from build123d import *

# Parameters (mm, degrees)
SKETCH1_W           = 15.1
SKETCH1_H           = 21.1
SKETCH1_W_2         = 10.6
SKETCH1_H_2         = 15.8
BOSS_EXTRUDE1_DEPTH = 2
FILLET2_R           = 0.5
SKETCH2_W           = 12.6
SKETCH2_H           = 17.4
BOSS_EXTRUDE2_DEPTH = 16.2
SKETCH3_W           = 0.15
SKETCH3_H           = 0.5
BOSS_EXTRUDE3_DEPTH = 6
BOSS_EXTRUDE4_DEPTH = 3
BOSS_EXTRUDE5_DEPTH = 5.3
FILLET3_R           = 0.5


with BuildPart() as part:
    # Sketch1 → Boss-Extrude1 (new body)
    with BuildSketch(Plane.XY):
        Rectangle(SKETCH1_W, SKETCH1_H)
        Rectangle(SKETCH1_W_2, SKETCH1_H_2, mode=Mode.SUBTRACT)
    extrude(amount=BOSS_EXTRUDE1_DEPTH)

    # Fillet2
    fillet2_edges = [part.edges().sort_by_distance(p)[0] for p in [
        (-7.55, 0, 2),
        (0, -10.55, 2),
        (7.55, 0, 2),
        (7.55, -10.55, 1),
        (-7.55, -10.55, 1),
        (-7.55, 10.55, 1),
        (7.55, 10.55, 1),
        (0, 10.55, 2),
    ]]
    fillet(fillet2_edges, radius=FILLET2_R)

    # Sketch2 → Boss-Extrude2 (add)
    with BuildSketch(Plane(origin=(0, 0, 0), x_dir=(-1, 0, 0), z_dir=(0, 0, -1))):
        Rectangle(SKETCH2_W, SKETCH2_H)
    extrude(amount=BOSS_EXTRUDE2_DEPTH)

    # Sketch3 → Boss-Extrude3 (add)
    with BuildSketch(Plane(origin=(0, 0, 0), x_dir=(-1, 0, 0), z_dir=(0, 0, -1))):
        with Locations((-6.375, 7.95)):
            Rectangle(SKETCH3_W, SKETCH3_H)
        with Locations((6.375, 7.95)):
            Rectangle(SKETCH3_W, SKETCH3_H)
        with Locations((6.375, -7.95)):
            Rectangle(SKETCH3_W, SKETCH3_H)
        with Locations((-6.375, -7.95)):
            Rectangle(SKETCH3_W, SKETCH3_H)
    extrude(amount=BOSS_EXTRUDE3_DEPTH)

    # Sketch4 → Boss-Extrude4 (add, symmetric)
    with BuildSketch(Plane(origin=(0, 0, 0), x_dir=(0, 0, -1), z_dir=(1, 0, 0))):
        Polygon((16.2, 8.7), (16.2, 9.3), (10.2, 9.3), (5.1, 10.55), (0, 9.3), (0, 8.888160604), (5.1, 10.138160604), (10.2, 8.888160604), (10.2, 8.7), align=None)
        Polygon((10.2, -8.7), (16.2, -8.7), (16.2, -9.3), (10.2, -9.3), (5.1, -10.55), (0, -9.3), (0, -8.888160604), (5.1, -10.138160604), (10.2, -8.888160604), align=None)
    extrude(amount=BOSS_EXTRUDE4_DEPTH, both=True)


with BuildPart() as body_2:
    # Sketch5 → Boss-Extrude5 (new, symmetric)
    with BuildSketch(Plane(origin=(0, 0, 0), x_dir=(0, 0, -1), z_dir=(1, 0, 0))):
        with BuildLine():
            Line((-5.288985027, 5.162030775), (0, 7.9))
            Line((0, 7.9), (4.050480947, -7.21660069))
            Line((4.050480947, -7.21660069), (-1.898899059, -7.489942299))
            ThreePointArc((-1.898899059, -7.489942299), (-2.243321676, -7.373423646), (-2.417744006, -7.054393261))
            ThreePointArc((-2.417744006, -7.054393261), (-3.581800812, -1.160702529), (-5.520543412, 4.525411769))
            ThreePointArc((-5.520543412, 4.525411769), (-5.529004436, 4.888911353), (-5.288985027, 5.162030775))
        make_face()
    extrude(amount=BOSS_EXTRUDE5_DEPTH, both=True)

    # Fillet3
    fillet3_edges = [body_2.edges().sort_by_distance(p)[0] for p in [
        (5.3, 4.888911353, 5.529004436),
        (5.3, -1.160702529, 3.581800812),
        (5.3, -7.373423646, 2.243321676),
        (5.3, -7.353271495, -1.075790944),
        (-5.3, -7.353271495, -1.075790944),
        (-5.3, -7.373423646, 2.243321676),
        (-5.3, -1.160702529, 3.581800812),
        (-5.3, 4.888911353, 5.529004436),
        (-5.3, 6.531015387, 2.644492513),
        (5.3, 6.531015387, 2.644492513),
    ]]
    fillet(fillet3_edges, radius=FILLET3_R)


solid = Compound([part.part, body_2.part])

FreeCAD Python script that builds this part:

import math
import FreeCAD as App
import Part
import Sketcher
Q = App.Units.Quantity


def edges_at(feature, points):
    """Names of the edges that pass closest to the given points."""
    edges = feature.Shape.Edges
    near = lambda p: min(range(len(edges)), key=lambda i: edges[i].distToShape(Part.Vertex(*p))[0])
    return sorted({f"Edge{near(p) + 1}" for p in points})

doc = App.newDocument("Part")
body = doc.addObject("PartDesign::Body", "Body")

sketch1 = body.newObject("Sketcher::SketchObject", "Sketch")
sketch1.AttachmentSupport = (doc.getObject("XY_Plane"), [""])
sketch1.MapMode = "FlatFace"
sketch1.addGeometry([
    Part.LineSegment(App.Vector(-8, 11, 0), App.Vector(-8, -11, 0)),
    Part.LineSegment(App.Vector(-8, -11, 0), App.Vector(8, -11, 0)),
    Part.LineSegment(App.Vector(8, -11, 0), App.Vector(8, 11, 0)),
    Part.LineSegment(App.Vector(8, 11, 0), App.Vector(-8, 11, 0)),
    Part.LineSegment(App.Vector(5, -8, 0), App.Vector(-5, -8, 0)),
    Part.LineSegment(App.Vector(-5, -8, 0), App.Vector(-5, 8, 0)),
    Part.LineSegment(App.Vector(-5, 8, 0), App.Vector(5, 8, 0)),
    Part.LineSegment(App.Vector(5, 8, 0), App.Vector(5, -8, 0)),
], False)
sketch1.addConstraint([
    Sketcher.Constraint("Coincident", 0, 2, 1, 1),
    Sketcher.Constraint("Coincident", 1, 2, 2, 1),
    Sketcher.Constraint("Coincident", 2, 2, 3, 1),
    Sketcher.Constraint("Coincident", 3, 2, 0, 1),
    Sketcher.Constraint("Coincident", 4, 2, 5, 1),
    Sketcher.Constraint("Coincident", 5, 2, 6, 1),
    Sketcher.Constraint("Coincident", 6, 2, 7, 1),
    Sketcher.Constraint("Coincident", 7, 2, 4, 1),
    Sketcher.Constraint("Vertical", 0),
    Sketcher.Constraint("Horizontal", 1),
    Sketcher.Constraint("Vertical", 2),
    Sketcher.Constraint("Horizontal", 3),
    Sketcher.Constraint("Horizontal", 4),
    Sketcher.Constraint("Vertical", 5),
    Sketcher.Constraint("Horizontal", 6),
    Sketcher.Constraint("Vertical", 7),
    Sketcher.Constraint("Symmetric", 0, 2, 2, 2, -1, 1),
    Sketcher.Constraint("Symmetric", 4, 2, 6, 2, -1, 1),
    Sketcher.Constraint("DistanceX", 1, 1, 1, 2, Q("15.1 mm")),
    Sketcher.Constraint("DistanceX", 4, 2, 4, 1, Q("10.6 mm")),
    Sketcher.Constraint("DistanceY", 0, 2, 0, 1, Q("21.1 mm")),
    Sketcher.Constraint("DistanceY", 5, 1, 5, 2, Q("15.8 mm")),
])
pad1 = body.newObject("PartDesign::Pad", "Pad")
pad1.Profile = sketch1
pad1.Length = 2
doc.recompute()

fillet = body.newObject("PartDesign::Fillet", "Fillet")
fillet.Base = (pad1, edges_at(pad1, [
    (-7.55, 0, 2),
    (0, -10.55, 2),
    (7.55, 0, 2),
    (7.55, -10.55, 1),
    (-7.55, -10.55, 1),
    (-7.55, 10.55, 1),
    (7.55, 10.55, 1),
    (0, 10.55, 2),
]))
fillet.Radius = 0.5

sketch2 = body.newObject("Sketcher::SketchObject", "Sketch001")
sketch2.AttachmentSupport = (doc.getObject("XY_Plane"), [""])
sketch2.MapMode = "FlatFace"
sketch2.addGeometry([
    Part.LineSegment(App.Vector(6, 9, 0), App.Vector(6, -9, 0)),
    Part.LineSegment(App.Vector(6, -9, 0), App.Vector(-6, -9, 0)),
    Part.LineSegment(App.Vector(-6, -9, 0), App.Vector(-6, 9, 0)),
    Part.LineSegment(App.Vector(-6, 9, 0), App.Vector(6, 9, 0)),
], False)
sketch2.addConstraint([
    Sketcher.Constraint("Coincident", 0, 2, 1, 1),
    Sketcher.Constraint("Coincident", 1, 2, 2, 1),
    Sketcher.Constraint("Coincident", 2, 2, 3, 1),
    Sketcher.Constraint("Coincident", 3, 2, 0, 1),
    Sketcher.Constraint("Vertical", 0),
    Sketcher.Constraint("Horizontal", 1),
    Sketcher.Constraint("Vertical", 2),
    Sketcher.Constraint("Horizontal", 3),
    Sketcher.Constraint("Symmetric", 0, 2, 2, 2, -1, 1),
    Sketcher.Constraint("DistanceX", 1, 2, 1, 1, Q("12.6 mm")),
    Sketcher.Constraint("DistanceY", 0, 2, 0, 1, Q("17.4 mm")),
])
pad2 = body.newObject("PartDesign::Pad", "Pad001")
pad2.Profile = sketch2
pad2.Length = 16.2
pad2.Reversed = True

sketch3 = body.newObject("Sketcher::SketchObject", "Sketch002")
sketch3.AttachmentSupport = (doc.getObject("XY_Plane"), [""])
sketch3.MapMode = "FlatFace"
sketch3.addGeometry([
    Part.LineSegment(App.Vector(6.45, 8.2, 0), App.Vector(6.45, 7.7, 0)),
    Part.LineSegment(App.Vector(6.45, 7.7, 0), App.Vector(6.3, 7.7, 0)),
    Part.LineSegment(App.Vector(6.3, 7.7, 0), App.Vector(6.3, 8.2, 0)),
    Part.LineSegment(App.Vector(6.3, 8.2, 0), App.Vector(6.45, 8.2, 0)),
    Part.LineSegment(App.Vector(-6.3, 8.2, 0), App.Vector(-6.3, 7.7, 0)),
    Part.LineSegment(App.Vector(-6.3, 7.7, 0), App.Vector(-6.45, 7.7, 0)),
    Part.LineSegment(App.Vector(-6.45, 7.7, 0), App.Vector(-6.45, 8.2, 0)),
    Part.LineSegment(App.Vector(-6.45, 8.2, 0), App.Vector(-6.3, 8.2, 0)),
    Part.LineSegment(App.Vector(-6.3, -7.7, 0), App.Vector(-6.3, -8.2, 0)),
    Part.LineSegment(App.Vector(-6.3, -8.2, 0), App.Vector(-6.45, -8.2, 0)),
    Part.LineSegment(App.Vector(-6.45, -8.2, 0), App.Vector(-6.45, -7.7, 0)),
    Part.LineSegment(App.Vector(-6.45, -7.7, 0), App.Vector(-6.3, -7.7, 0)),
    Part.LineSegment(App.Vector(6.45, -7.7, 0), App.Vector(6.45, -8.2, 0)),
    Part.LineSegment(App.Vector(6.45, -8.2, 0), App.Vector(6.3, -8.2, 0)),
    Part.LineSegment(App.Vector(6.3, -8.2, 0), App.Vector(6.3, -7.7, 0)),
    Part.LineSegment(App.Vector(6.3, -7.7, 0), App.Vector(6.45, -7.7, 0)),
], False)
sketch3.addConstraint([
    Sketcher.Constraint("Coincident", 0, 2, 1, 1),
    Sketcher.Constraint("Coincident", 1, 2, 2, 1),
    Sketcher.Constraint("Coincident", 2, 2, 3, 1),
    Sketcher.Constraint("Coincident", 3, 2, 0, 1),
    Sketcher.Constraint("Coincident", 4, 2, 5, 1),
    Sketcher.Constraint("Coincident", 5, 2, 6, 1),
    Sketcher.Constraint("Coincident", 6, 2, 7, 1),
    Sketcher.Constraint("Coincident", 7, 2, 4, 1),
    Sketcher.Constraint("Coincident", 8, 2, 9, 1),
    Sketcher.Constraint("Coincident", 9, 2, 10, 1),
    Sketcher.Constraint("Coincident", 10, 2, 11, 1),
    Sketcher.Constraint("Coincident", 11, 2, 8, 1),
    Sketcher.Constraint("Coincident", 12, 2, 13, 1),
    Sketcher.Constraint("Coincident", 13, 2, 14, 1),
    Sketcher.Constraint("Coincident", 14, 2, 15, 1),
    Sketcher.Constraint("Coincident", 15, 2, 12, 1),
    Sketcher.Constraint("Vertical", 0),
    Sketcher.Constraint("Horizontal", 1),
    Sketcher.Constraint("Vertical", 2),
    Sketcher.Constraint("Horizontal", 3),
    Sketcher.Constraint("Vertical", 4),
    Sketcher.Constraint("Horizontal", 5),
    Sketcher.Constraint("Vertical", 6),
    Sketcher.Constraint("Horizontal", 7),
    Sketcher.Constraint("Vertical", 8),
    Sketcher.Constraint("Horizontal", 9),
    Sketcher.Constraint("Vertical", 10),
    Sketcher.Constraint("Horizontal", 11),
    Sketcher.Constraint("Vertical", 12),
    Sketcher.Constraint("Horizontal", 13),
    Sketcher.Constraint("Vertical", 14),
    Sketcher.Constraint("Horizontal", 15),
    Sketcher.Constraint("Symmetric", 2, 2, 8, 2, -1, 1),
    Sketcher.Constraint("Symmetric", 0, 2, 10, 2, -1, 1),
    Sketcher.Constraint("Symmetric", 6, 2, 12, 2, -1, 1),
    Sketcher.Constraint("Symmetric", 4, 2, 14, 2, -1, 1),
    Sketcher.Constraint("Symmetric", 1, 2, 4, 2, -2),
    Sketcher.Constraint("Symmetric", 3, 2, 6, 2, -2),
    Sketcher.Constraint("DistanceY", 0, 2, 0, 1, Q("0.5 mm")),
    Sketcher.Constraint("DistanceX", 1, 2, 1, 1, Q("0.15 mm")),
    Sketcher.Constraint("DistanceY", -1, 1, 0, 2, Q("7.7 mm")),
    Sketcher.Constraint("DistanceX", -1, 1, 1, 2, Q("6.3 mm")),
])
pad3 = body.newObject("PartDesign::Pad", "Pad002")
pad3.Profile = sketch3
pad3.Length = 6
pad3.Reversed = True

sketch4 = body.newObject("Sketcher::SketchObject", "Sketch003")
sketch4.AttachmentSupport = (doc.getObject("YZ_Plane"), [""])
sketch4.MapMode = "FlatFace"
sketch4.addGeometry([
    Part.LineSegment(App.Vector(8.7, -16.2, 0), App.Vector(9.3, -16.2, 0)),
    Part.LineSegment(App.Vector(9.3, -16.2, 0), App.Vector(9.3, -10.2, 0)),
    Part.LineSegment(App.Vector(9.3, -10.2, 0), App.Vector(10.55, -5.1, 0)),
    Part.LineSegment(App.Vector(10.55, -5.1, 0), App.Vector(9.3, 0, 0)),
    Part.LineSegment(App.Vector(9.3, 0, 0), App.Vector(8.89, 0, 0)),
    Part.LineSegment(App.Vector(8.89, 0, 0), App.Vector(10.14, -5.1, 0)),
    Part.LineSegment(App.Vector(10.14, -5.1, 0), App.Vector(8.89, -10.2, 0)),
    Part.LineSegment(App.Vector(8.89, -10.2, 0), App.Vector(8.7, -10.2, 0)),
    Part.LineSegment(App.Vector(8.7, -10.2, 0), App.Vector(8.7, -16.2, 0)),
    Part.LineSegment(App.Vector(-8.7, -16.2, 0), App.Vector(-8.7, -10.2, 0)),
    Part.LineSegment(App.Vector(-8.7, -10.2, 0), App.Vector(-8.89, -10.2, 0)),
    Part.LineSegment(App.Vector(-8.89, -10.2, 0), App.Vector(-10.14, -5.1, 0)),
    Part.LineSegment(App.Vector(-10.14, -5.1, 0), App.Vector(-8.89, 0, 0)),
    Part.LineSegment(App.Vector(-8.89, 0, 0), App.Vector(-9.3, 0, 0)),
    Part.LineSegment(App.Vector(-9.3, 0, 0), App.Vector(-10.55, -5.1, 0)),
    Part.LineSegment(App.Vector(-10.55, -5.1, 0), App.Vector(-9.3, -10.2, 0)),
    Part.LineSegment(App.Vector(-9.3, -10.2, 0), App.Vector(-9.3, -16.2, 0)),
    Part.LineSegment(App.Vector(-9.3, -16.2, 0), App.Vector(-8.7, -16.2, 0)),
], False)
sketch4.addConstraint([
    Sketcher.Constraint("Coincident", 0, 2, 1, 1),
    Sketcher.Constraint("Coincident", 1, 2, 2, 1),
    Sketcher.Constraint("Coincident", 2, 2, 3, 1),
    Sketcher.Constraint("Coincident", 3, 2, 4, 1),
    Sketcher.Constraint("Coincident", 4, 2, 5, 1),
    Sketcher.Constraint("Coincident", 5, 2, 6, 1),
    Sketcher.Constraint("Coincident", 6, 2, 7, 1),
    Sketcher.Constraint("Coincident", 7, 2, 8, 1),
    Sketcher.Constraint("Coincident", 8, 2, 0, 1),
    Sketcher.Constraint("Coincident", 9, 2, 10, 1),
    Sketcher.Constraint("Coincident", 10, 2, 11, 1),
    Sketcher.Constraint("Coincident", 11, 2, 12, 1),
    Sketcher.Constraint("Coincident", 12, 2, 13, 1),
    Sketcher.Constraint("Coincident", 13, 2, 14, 1),
    Sketcher.Constraint("Coincident", 14, 2, 15, 1),
    Sketcher.Constraint("Coincident", 15, 2, 16, 1),
    Sketcher.Constraint("Coincident", 16, 2, 17, 1),
    Sketcher.Constraint("Coincident", 17, 2, 9, 1),
    Sketcher.Constraint("Horizontal", 0),
    Sketcher.Constraint("Vertical", 1),
    Sketcher.Constraint("Horizontal", 4),
    Sketcher.Constraint("Horizontal", 7),
    Sketcher.Constraint("Vertical", 8),
    Sketcher.Constraint("Vertical", 9),
    Sketcher.Constraint("Horizontal", 10),
    Sketcher.Constraint("Horizontal", 13),
    Sketcher.Constraint("Vertical", 16),
    Sketcher.Constraint("Horizontal", 17),
    Sketcher.Constraint("Symmetric", 4, 2, 12, 2, -1, 1),
    Sketcher.Constraint("Symmetric", 7, 2, 9, 2, -2),
    Sketcher.Constraint("Symmetric", 5, 2, 11, 2, -2),
    Sketcher.Constraint("Symmetric", 3, 2, 13, 2, -2),
    Sketcher.Constraint("Symmetric", 2, 2, 14, 2, -2),
    Sketcher.Constraint("Symmetric", 1, 2, 15, 2, -2),
    Sketcher.Constraint("Parallel", 3, 5),
    Sketcher.Constraint("Parallel", 2, 6),
    Sketcher.Constraint("Parallel", 5, 11),
    Sketcher.Constraint("Parallel", 6, 12),
    Sketcher.Constraint("Horizontal", 2, 2, 5, 2),
    Sketcher.Constraint("Horizontal", 1, 2, 6, 2),
    Sketcher.Constraint("Horizontal", 8, 2, 16, 2),
    Sketcher.Constraint("Vertical", 1, 2, 3, 2),
    Sketcher.Constraint("DistanceY", 1, 1, 1, 2, Q("6 mm")),
    Sketcher.Constraint("DistanceX", 0, 1, 0, 2, Q("0.6 mm")),
    Sketcher.Constraint("DistanceX", 9, 2, 1, 2, Q("18 mm")),
    Sketcher.Constraint("DistanceY", 0, 2, -1, 1, Q("16.2 mm")),
    Sketcher.Constraint("DistanceX", -1, 1, 2, 2, Q("10.55 mm")),
    Sketcher.Constraint("DistanceX", 4, 2, 4, 1, Q("0.411839 mm")),
])
pad4 = body.newObject("PartDesign::Pad", "Pad003")
pad4.Profile = sketch4
pad4.Length = 6
pad4.Midplane = True
body2 = doc.addObject("PartDesign::Body", "Body001")

sketch5 = body2.newObject("Sketcher::SketchObject", "Sketch004")
sketch5.AttachmentSupport = (doc.getObject("YZ_Plane001"), [""])
sketch5.MapMode = "FlatFace"
sketch5.addGeometry([
    Part.LineSegment(App.Vector(7.9, 0, 0), App.Vector(5.2, 5.3, 0)),
    Part.ArcOfCircle(Part.Circle(App.Vector(4.7, 5.1, 0), App.Vector(0, 0, 1), 0.5), math.radians(27), math.radians(113)),
    Part.ArcOfCircle(Part.Circle(App.Vector(-12.8, 47, 0), App.Vector(0, 0, 1), 45), math.radians(-82.65), math.radians(-67.35)),
    Part.ArcOfCircle(Part.Circle(App.Vector(-7, 1.9, 0), App.Vector(0, 0, 1), 0.5), math.radians(97), math.radians(183)),
    Part.LineSegment(App.Vector(-7.5, 1.9, 0), App.Vector(-7.2, -4.1, 0)),
    Part.LineSegment(App.Vector(-7.2, -4.1, 0), App.Vector(7.9, 0, 0)),
], False)
sketch5.addConstraint([
    Sketcher.Constraint("Tangent", 0, 2, 1, 1),
    Sketcher.Constraint("Tangent", 1, 2, 2, 2),
    Sketcher.Constraint("Tangent", 2, 1, 3, 1),
    Sketcher.Constraint("Tangent", 3, 2, 4, 1),
    Sketcher.Constraint("Coincident", 4, 2, 5, 1),
    Sketcher.Constraint("Coincident", 5, 2, 0, 1),
    Sketcher.Constraint("Equal", 1, 3),
    Sketcher.Constraint("PointOnObject", 5, 2, -1),
    Sketcher.Constraint("Equal", 0, 4),
    Sketcher.Constraint("Radius", 2, Q("45 mm")),
    Sketcher.Constraint("Radius", 1, Q("0.5 mm")),
    Sketcher.Constraint("Angle", 5, Q("15 deg")),
    Sketcher.Constraint("DistanceX", -1, 1, 5, 2, Q("7.9 mm")),
    Sketcher.Constraint("DistanceX", -1, 1, 1, 3, Q("4.718 mm")),
    Sketcher.Constraint("DistanceY", -1, 1, 3, 2, Q("1.898899 mm")),
    Sketcher.Constraint("DistanceX", 4, 2, -1, 1, Q("7.216601 mm")),
    Sketcher.Constraint("DistanceX", 3, 3, 0, 2, Q("12.1525 mm")),
])
pad5 = body2.newObject("PartDesign::Pad", "Pad004")
pad5.Profile = sketch5
pad5.Length = 10.6
pad5.Midplane = True
doc.recompute()

fillet2 = body2.newObject("PartDesign::Fillet", "Fillet001")
fillet2.Base = (pad5, edges_at(pad5, [
    (5.3, 4.889, 5.529),
    (5.3, -1.161, 3.582),
    (5.3, -7.373, 2.243),
    (5.3, -7.353, -1.076),
    (-5.3, -7.353, -1.076),
    (-5.3, -7.373, 2.243),
    (-5.3, -1.161, 3.582),
    (-5.3, 4.889, 5.529),
    (-5.3, 6.531, 2.644),
    (5.3, 6.531, 2.644),
]))
fillet2.Radius = 0.5

doc.recompute()
